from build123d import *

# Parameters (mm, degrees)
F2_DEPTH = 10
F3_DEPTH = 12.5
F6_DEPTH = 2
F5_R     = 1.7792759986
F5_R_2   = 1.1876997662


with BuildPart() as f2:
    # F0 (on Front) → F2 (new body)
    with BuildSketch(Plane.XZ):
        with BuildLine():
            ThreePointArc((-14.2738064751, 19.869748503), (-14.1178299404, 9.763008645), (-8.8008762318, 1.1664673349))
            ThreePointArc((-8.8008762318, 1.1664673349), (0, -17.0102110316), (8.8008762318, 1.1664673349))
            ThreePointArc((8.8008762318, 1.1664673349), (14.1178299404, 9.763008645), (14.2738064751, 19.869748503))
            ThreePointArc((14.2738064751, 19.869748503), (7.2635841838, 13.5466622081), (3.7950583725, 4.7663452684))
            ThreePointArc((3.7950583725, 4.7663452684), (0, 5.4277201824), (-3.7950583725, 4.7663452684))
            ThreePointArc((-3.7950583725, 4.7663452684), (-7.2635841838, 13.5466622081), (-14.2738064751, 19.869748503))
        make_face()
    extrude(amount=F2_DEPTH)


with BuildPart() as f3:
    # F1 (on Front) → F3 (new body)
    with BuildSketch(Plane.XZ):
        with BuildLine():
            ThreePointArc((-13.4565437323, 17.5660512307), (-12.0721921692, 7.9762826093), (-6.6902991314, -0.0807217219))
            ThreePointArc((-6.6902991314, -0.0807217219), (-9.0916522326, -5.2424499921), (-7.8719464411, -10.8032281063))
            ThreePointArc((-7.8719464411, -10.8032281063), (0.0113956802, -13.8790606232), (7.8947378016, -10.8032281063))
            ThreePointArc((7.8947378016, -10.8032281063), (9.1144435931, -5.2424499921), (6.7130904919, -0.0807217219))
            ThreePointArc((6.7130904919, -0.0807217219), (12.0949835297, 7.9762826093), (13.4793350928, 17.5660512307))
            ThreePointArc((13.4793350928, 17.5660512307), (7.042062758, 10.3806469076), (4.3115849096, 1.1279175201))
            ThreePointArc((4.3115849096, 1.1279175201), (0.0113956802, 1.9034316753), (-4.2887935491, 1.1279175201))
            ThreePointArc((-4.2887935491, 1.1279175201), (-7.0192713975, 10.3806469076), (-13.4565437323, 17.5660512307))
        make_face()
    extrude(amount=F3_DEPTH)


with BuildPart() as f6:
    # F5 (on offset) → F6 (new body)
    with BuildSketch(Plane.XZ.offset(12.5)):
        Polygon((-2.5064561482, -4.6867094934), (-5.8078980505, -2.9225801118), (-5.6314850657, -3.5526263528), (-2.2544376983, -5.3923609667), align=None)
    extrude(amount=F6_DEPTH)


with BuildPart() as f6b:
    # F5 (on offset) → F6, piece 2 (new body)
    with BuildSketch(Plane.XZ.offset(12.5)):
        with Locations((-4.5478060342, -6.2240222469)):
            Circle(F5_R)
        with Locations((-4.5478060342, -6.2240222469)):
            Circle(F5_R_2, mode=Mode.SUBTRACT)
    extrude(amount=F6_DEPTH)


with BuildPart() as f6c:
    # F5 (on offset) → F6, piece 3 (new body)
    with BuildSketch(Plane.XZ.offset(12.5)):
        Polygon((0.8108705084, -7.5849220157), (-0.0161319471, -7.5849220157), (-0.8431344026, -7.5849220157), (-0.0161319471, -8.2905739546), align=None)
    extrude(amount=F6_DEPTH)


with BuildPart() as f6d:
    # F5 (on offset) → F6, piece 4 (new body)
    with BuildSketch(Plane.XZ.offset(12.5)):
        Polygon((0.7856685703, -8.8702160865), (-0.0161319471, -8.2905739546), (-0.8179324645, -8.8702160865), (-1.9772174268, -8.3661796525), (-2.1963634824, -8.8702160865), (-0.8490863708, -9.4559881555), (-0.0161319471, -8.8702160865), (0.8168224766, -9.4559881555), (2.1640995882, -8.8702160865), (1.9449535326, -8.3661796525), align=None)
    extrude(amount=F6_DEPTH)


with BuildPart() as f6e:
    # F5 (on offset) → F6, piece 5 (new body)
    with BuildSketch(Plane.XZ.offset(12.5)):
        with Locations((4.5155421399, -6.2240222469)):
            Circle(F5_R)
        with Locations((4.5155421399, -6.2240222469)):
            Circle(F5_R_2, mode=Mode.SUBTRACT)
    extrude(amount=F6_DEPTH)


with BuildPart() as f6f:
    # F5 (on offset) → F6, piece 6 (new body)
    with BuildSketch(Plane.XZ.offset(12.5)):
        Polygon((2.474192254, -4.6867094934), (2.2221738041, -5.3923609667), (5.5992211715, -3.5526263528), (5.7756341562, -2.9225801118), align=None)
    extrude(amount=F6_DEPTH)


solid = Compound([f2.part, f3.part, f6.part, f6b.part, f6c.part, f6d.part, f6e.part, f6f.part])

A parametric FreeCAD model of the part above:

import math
import FreeCAD as App
import Part
import Sketcher

V = App.Vector

doc = App.newDocument("Part")
params = doc.addObject("Spreadsheet::Sheet", "Params")
for row, (alias, value) in enumerate([
    ("sketch1_radius", "19 mm"),
    ("pad1_length", "10 mm"),
    ("pad2_length", "12.5 mm"),
    ("pad3_length", "2 mm"),
    ("pad4_length", "2 mm"),
    ("pad5_length", "2 mm"),
    ("pad6_length", "2 mm"),
    ("pad7_length", "2 mm"),
    ("pad8_length", "2 mm"),
], start=1):
    params.set(f"A{row}", alias)
    params.set(f"B{row}", "=" + value)
    params.setAlias(f"B{row}", alias)

body = doc.addObject("PartDesign::Body", "Body")

sketch1 = body.newObject("Sketcher::SketchObject", "Sketch")
sketch1.AttachmentSupport = (doc.getObject("XZ_Plane"), [""])
sketch1.MapMode = "FlatFace"
sketch1.addGeometry([
    Part.ArcOfCircle(Part.Circle(V(4, 15, 0), V(0, 0, 1), 19), math.radians(165), math.radians(227)),
    Part.ArcOfCircle(Part.Circle(V(0, -6, 0), V(0, 0, 1), 11), math.radians(142), math.radians(398)),
    Part.ArcOfCircle(Part.Circle(V(-4, 15, 0), V(0, 0, 1), 19), math.radians(-47), math.radians(15)),
    Part.ArcOfCircle(Part.Circle(V(24, 2, 0), V(0, 0, 1), 21), math.radians(119), math.radians(172)),
    Part.ArcOfCircle(Part.Circle(V(0, -6, 0), V(0, 0, 1), 11), math.radians(70), math.radians(110)),
    Part.ArcOfCircle(Part.Circle(V(-24, 2, 0), V(0, 0, 1), 21), math.radians(8), math.radians(61)),
], False)
sketch1.addConstraint([
    Sketcher.Constraint("Coincident", 0, 2, 1, 1),
    Sketcher.Constraint("Coincident", 1, 2, 2, 1),
    Sketcher.Constraint("Coincident", 2, 2, 3, 1),
    Sketcher.Constraint("Coincident", 3, 2, 4, 1),
    Sketcher.Constraint("Coincident", 4, 2, 5, 1),
    Sketcher.Constraint("Coincident", 5, 2, 0, 1),
    Sketcher.Constraint("Coincident", 4, 3, 1, 3),
    Sketcher.Constraint("Equal", 0, 2),
    Sketcher.Constraint("Equal", 1, 4),
    Sketcher.Constraint("Equal", 3, 5),
    Sketcher.Constraint("Symmetric", 0, 3, 2, 3, -2),
    Sketcher.Constraint("Symmetric", 3, 3, 5, 3, -2),
    Sketcher.Constraint("PointOnObject", 1, 3, -2),
    Sketcher.Constraint("Radius", 0, 19.0),
    Sketcher.Constraint("Radius", 3, 20.675511),
    Sketcher.Constraint("Radius", 1, 11.218966),
    Sketcher.Constraint("DistanceY", -1, 1, 3, 3, 1.760819),
    Sketcher.Constraint("DistanceY", -1, 1, 2, 2, 19.869749),
    Sketcher.Constraint("DistanceX", -1, 1, 3, 2, 3.795058),
    Sketcher.Constraint("DistanceY", 1, 3, 0, 3, 20.890252),
    Sketcher.Constraint("DistanceX", 2, 3, 3, 3, 28.368448),
])
sketch1.setExpression("Constraints[13]", "Params.sketch1_radius")
pad1 = body.newObject("PartDesign::Pad", "Pad")
pad1.Profile = sketch1
pad1.setExpression("Length", "Params.pad1_length")
body2 = doc.addObject("PartDesign::Body", "Body001")

sketch2 = body2.newObject("Sketcher::SketchObject", "Sketch001")
sketch2.AttachmentSupport = (doc.getObject("XZ_Plane001"), [""])
sketch2.MapMode = "FlatFace"
sketch2.addGeometry([
    Part.ArcOfCircle(Part.Circle(V(8, 16, 0), V(0, 0, 1), 22), math.radians(175), math.radians(227)),
    Part.ArcOfCircle(Part.Circle(V(0, -6, 0), V(0, 0, 1), 9), math.radians(136), math.radians(211)),
    Part.ArcOfCircle(Part.Circle(V(0, -2, 0), V(0, 0, 1), 12), math.radians(-133), math.radians(-47)),
    Part.ArcOfCircle(Part.Circle(V(0, -6, 0), V(0, 0, 1), 9), math.radians(-31), math.radians(44)),
    Part.ArcOfCircle(Part.Circle(V(-8, 16, 0), V(0, 0, 1), 22), math.radians(-47), math.radians(5)),
    Part.ArcOfCircle(Part.Circle(V(26, 0, 0), V(0, 0, 1), 22), math.radians(125), math.radians(176)),
    Part.ArcOfCircle(Part.Circle(V(0, -10, 0), V(0, 0, 1), 12), math.radians(70), math.radians(110)),
    Part.ArcOfCircle(Part.Circle(V(-26, 0, 0), V(0, 0, 1), 22), math.radians(4), math.radians(55)),
], False)
sketch2.addConstraint([
    Sketcher.Constraint("Coincident", 0, 2, 1, 1),
    Sketcher.Constraint("Coincident", 1, 2, 2, 1),
    Sketcher.Constraint("Coincident", 2, 2, 3, 1),
    Sketcher.Constraint("Coincident", 3, 2, 4, 1),
    Sketcher.Constraint("Coincident", 4, 2, 5, 1),
    Sketcher.Constraint("Coincident", 5, 2, 6, 1),
    Sketcher.Constraint("Coincident", 6, 2, 7, 1),
    Sketcher.Constraint("Coincident", 7, 2, 0, 1),
    Sketcher.Constraint("Equal", 1, 3),
    Sketcher.Constraint("Equal", 0, 4),
    Sketcher.Constraint("Equal", 4, 5),
    Sketcher.Constraint("Equal", 5, 7),
    Sketcher.Constraint("Horizontal", 1, 3, 3, 3),
    Sketcher.Constraint("Horizontal", 0, 3, 4, 3),
    Sketcher.Constraint("Horizontal", 5, 3, 7, 3),
    Sketcher.Constraint("Horizontal", 1, 2, 2, 2),
    Sketcher.Constraint("Horizontal", 0, 2, 3, 2),
    Sketcher.Constraint("Horizontal", 5, 2, 6, 2),
    Sketcher.Constraint("Horizontal", 4, 2, 7, 2),
    Sketcher.Constraint("DistanceY", 5, 3, -1, 1, 0.3),
    Sketcher.Constraint("Radius", 6, 12.30993),
    Sketcher.Constraint("Radius", 0, 21.927836),
    Sketcher.Constraint("Radius", 1, 8.896543),
    Sketcher.Constraint("Radius", 2, 11.640398),
    Sketcher.Constraint("DistanceX", -1, 1, 0, 3, 8.4022),
    Sketcher.Constraint("DistanceY", 6, 3, -1, 1, 10.406498),
    Sketcher.Constraint("DistanceX", 0, 2, -1, 1, 6.690299),
    Sketcher.Constraint("DistanceY", 1, 3, -1, 1, 6.216972),
    Sketcher.Constraint("DistanceX", 4, 3, -1, 1, 8.379409),
    Sketcher.Constraint("DistanceX", -1, 1, 5, 3, 26.192879),
    Sketcher.Constraint("DistanceY", 0, 2, -1, 1, 0.080722),
    Sketcher.Constraint("DistanceY", 1, 2, -1, 1, 10.803228),
])
pad2 = body2.newObject("PartDesign::Pad", "Pad001")
pad2.Profile = sketch2
pad2.setExpression("Length", "Params.pad2_length")
body3 = doc.addObject("PartDesign::Body", "Body002")

sketch3 = body3.newObject("Sketcher::SketchObject", "Sketch002")
sketch3.AttachmentSupport = (doc.getObject("XZ_Plane002"), [""])
sketch3.MapMode = "FlatFace"
sketch3.AttachmentOffset = App.Placement(V(0, 0, 12.5), App.Rotation())
sketch3.addGeometry([
    Part.LineSegment(V(-2.5, -4.7, 0), V(-5.8, -2.9, 0)),
    Part.LineSegment(V(-5.8, -2.9, 0), V(-5.6, -3.6, 0)),
    Part.LineSegment(V(-5.6, -3.6, 0), V(-2.3, -5.4, 0)),
    Part.LineSegment(V(-2.3, -5.4, 0), V(-2.5, -4.7, 0)),
], False)
sketch3.addConstraint([
    Sketcher.Constraint("Coincident", 0, 2, 1, 1),
    Sketcher.Constraint("Coincident", 1, 2, 2, 1),
    Sketcher.Constraint("Coincident", 2, 2, 3, 1),
    Sketcher.Constraint("Coincident", 3, 2, 0, 1),
    Sketcher.Constraint("DistanceX", 0, 2, -1, 1, 5.807898),
    Sketcher.Constraint("Distance", 1, 0.654278),
    Sketcher.Constraint("DistanceY", 0, 2, -1, 1, 2.92258),
    Sketcher.Constraint("DistanceY", 2, 2, -1, 1, 5.392361),
    Sketcher.Constraint("DistanceY", 3, 2, -1, 1, 4.686709),
    Sketcher.Constraint("DistanceX", 0, 2, 2, 2, 3.55346),
    Sketcher.Constraint("DistanceX", 3, 2, 2, 2, 0.252018),
    Sketcher.Constraint("DistanceX", 1, 2, 3, 2, 3.125029),
])
pad3 = body3.newObject("PartDesign::Pad", "Pad002")
pad3.Profile = sketch3
pad3.setExpression("Length", "Params.pad3_length")
body4 = doc.addObject("PartDesign::Body", "Body003")

sketch4 = body4.newObject("Sketcher::SketchObject", "Sketch003")
sketch4.AttachmentSupport = (doc.getObject("XZ_Plane003"), [""])
sketch4.MapMode = "FlatFace"
sketch4.AttachmentOffset = App.Placement(V(0, 0, 12.5), App.Rotation())
sketch4.addGeometry([
    Part.Circle(V(-4.5, -6.2, 0), V(0, 0, 1), 1.8),
    Part.Circle(V(-4.5, -6.2, 0), V(0, 0, 1), 1.2),
], False)
sketch4.addConstraint([
    Sketcher.Constraint("Coincident", 1, 3, 0, 3),
    Sketcher.Constraint("Diameter", 1, 2.3754),
    Sketcher.Constraint("Diameter", 0, 3.558552),
    Sketcher.Constraint("DistanceX", 0, 3, -1, 1, 4.547806),
    Sketcher.Constraint("DistanceY", 0, 3, -1, 1, 6.224022),
])
pad4 = body4.newObject("PartDesign::Pad", "Pad003")
pad4.Profile = sketch4
pad4.setExpression("Length", "Params.pad4_length")
body5 = doc.addObject("PartDesign::Body", "Body004")

sketch5 = body5.newObject("Sketcher::SketchObject", "Sketch004")
sketch5.AttachmentSupport = (doc.getObject("XZ_Plane004"), [""])
sketch5.MapMode = "FlatFace"
sketch5.AttachmentOffset = App.Placement(V(0, 0, 12.5), App.Rotation())
sketch5.addGeometry([
    Part.LineSegment(V(0.8, -7.6, 0), V(-0.8, -7.6, 0)),
    Part.LineSegment(V(-0.8, -7.6, 0), V(0, -8.3, 0)),
    Part.LineSegment(V(0, -8.3, 0), V(0.8, -7.6, 0)),
], False)
sketch5.addConstraint([
    Sketcher.Constraint("Coincident", 0, 2, 1, 1),
    Sketcher.Constraint("Coincident", 1, 2, 2, 1),
    Sketcher.Constraint("Coincident", 2, 2, 0, 1),
    Sketcher.Constraint("Horizontal", 0),
    Sketcher.Constraint("Equal", 1, 2),
    Sketcher.Constraint("Distance", 1, 1.087142),
    Sketcher.Constraint("DistanceX", 0, 2, 0, 1, 1.654005),
    Sketcher.Constraint("DistanceX", 1, 2, -1, 1, 0.016132),
    Sketcher.Constraint("DistanceY", 0, 2, -1, 1, 7.584922),
])
pad5 = body5.newObject("PartDesign::Pad", "Pad004")
pad5.Profile = sketch5
pad5.setExpression("Length", "Params.pad5_length")
body6 = doc.addObject("PartDesign::Body", "Body005")

sketch6 = body6.newObject("Sketcher::SketchObject", "Sketch005")
sketch6.AttachmentSupport = (doc.getObject("XZ_Plane005"), [""])
sketch6.MapMode = "FlatFace"
sketch6.AttachmentOffset = App.Placement(V(0, 0, 12.5), App.Rotation())
sketch6.addGeometry([
    Part.LineSegment(V(0.8, -8.9, 0), V(0, -8.3, 0)),
    Part.LineSegment(V(0, -8.3, 0), V(-0.8, -8.9, 0)),
    Part.LineSegment(V(-0.8, -8.9, 0), V(-2, -8.4, 0)),
    Part.LineSegment(V(-2, -8.4, 0), V(-2.2, -8.9, 0)),
    Part.LineSegment(V(-2.2, -8.9, 0), V(-0.8, -9.5, 0)),
    Part.LineSegment(V(-0.8, -9.5, 0), V(0, -8.9, 0)),
    Part.LineSegment(V(0, -8.9, 0), V(0.8, -9.5, 0)),
    Part.LineSegment(V(0.8, -9.5, 0), V(2.2, -8.9, 0)),
    Part.LineSegment(V(2.2, -8.9, 0), V(1.9, -8.4, 0)),
    Part.LineSegment(V(1.9, -8.4, 0), V(0.8, -8.9, 0)),
], False)
sketch6.addConstraint([
    Sketcher.Constraint("Coincident", 0, 2, 1, 1),
    Sketcher.Constraint("Coincident", 1, 2, 2, 1),
    Sketcher.Constraint("Coincident", 2, 2, 3, 1),
    Sketcher.Constraint("Coincident", 3, 2, 4, 1),
    Sketcher.Constraint("Coincident", 4, 2, 5, 1),
    Sketcher.Constraint("Coincident", 5, 2, 6, 1),
    Sketcher.Constraint("Coincident", 6, 2, 7, 1),
    Sketcher.Constraint("Coincident", 7, 2, 8, 1),
    Sketcher.Constraint("Coincident", 8, 2, 9, 1),
    Sketcher.Constraint("Coincident", 9, 2, 0, 1),
    Sketcher.Constraint("Perpendicular", 2, 3),
    Sketcher.Constraint("Perpendicular", 3, 4),
    Sketcher.Constraint("Perpendicular", 7, 8),
    Sketcher.Constraint("Perpendicular", 8, 9),
    Sketcher.Constraint("Horizontal", 1, 2, 3, 2),
    Sketcher.Constraint("Horizontal", 3, 2, 5, 2),
    Sketcher.Constraint("Horizontal", 4, 2, 6, 2),
    Sketcher.Constraint("Horizontal", 5, 2, 7, 2),
    Sketcher.Constraint("Horizontal", 2, 2, 8, 2),
    Sketcher.Constraint("Horizontal", 7, 2, 9, 2),
    Sketcher.Constraint("Vertical", 0, 2, 5, 2),
    Sketcher.Constraint("Equal", 0, 1),
    Sketcher.Constraint("Equal", 5, 6),
    Sketcher.Constraint("DistanceX", -1, 1, 7, 2, 2.1641),
    Sketcher.Constraint("DistanceX", 1, 2, 0, 2, 0.801801),
    Sketcher.Constraint("Distance", 0, 0.989378),
    Sketcher.Constraint("Distance", 2, 1.264118),
    Sketcher.Constraint("Distance", 4, 1.46911),
    Sketcher.Constraint("DistanceX", 0, 2, -1, 1, 0.016132),
    Sketcher.Constraint("DistanceY", 2, 2, -1, 1, 8.36618),
])
pad6 = body6.newObject("PartDesign::Pad", "Pad005")
pad6.Profile = sketch6
pad6.setExpression("Length", "Params.pad6_length")
body7 = doc.addObject("PartDesign::Body", "Body006")

sketch7 = body7.newObject("Sketcher::SketchObject", "Sketch006")
sketch7.AttachmentSupport = (doc.getObject("XZ_Plane006"), [""])
sketch7.MapMode = "FlatFace"
sketch7.AttachmentOffset = App.Placement(V(0, 0, 12.5), App.Rotation())
sketch7.addGeometry([
    Part.Circle(V(4.5, -6.2, 0), V(0, 0, 1), 1.8),
    Part.Circle(V(4.5, -6.2, 0), V(0, 0, 1), 1.2),
], False)
sketch7.addConstraint([
    Sketcher.Constraint("Coincident", 1, 3, 0, 3),
    Sketcher.Constraint("Diameter", 1, 2.3754),
    Sketcher.Constraint("Diameter", 0, 3.558552),
    Sketcher.Constraint("DistanceX", -1, 1, 0, 3, 4.515542),
    Sketcher.Constraint("DistanceY", 0, 3, -1, 1, 6.224022),
])
pad7 = body7.newObject("PartDesign::Pad", "Pad006")
pad7.Profile = sketch7
pad7.setExpression("Length", "Params.pad7_length")
body8 = doc.addObject("PartDesign::Body", "Body007")

sketch8 = body8.newObject("Sketcher::SketchObject", "Sketch007")
sketch8.AttachmentSupport = (doc.getObject("XZ_Plane007"), [""])
sketch8.MapMode = "FlatFace"
sketch8.AttachmentOffset = App.Placement(V(0, 0, 12.5), App.Rotation())
sketch8.addGeometry([
    Part.LineSegment(V(2.5, -4.7, 0), V(2.2, -5.4, 0)),
    Part.LineSegment(V(2.2, -5.4, 0), V(5.6, -3.6, 0)),
    Part.LineSegment(V(5.6, -3.6, 0), V(5.8, -2.9, 0)),
    Part.LineSegment(V(5.8, -2.9, 0), V(2.5, -4.7, 0)),
], False)
sketch8.addConstraint([
    Sketcher.Constraint("Coincident", 0, 2, 1, 1),
    Sketcher.Constraint("Coincident", 1, 2, 2, 1),
    Sketcher.Constraint("Coincident", 2, 2, 3, 1),
    Sketcher.Constraint("Coincident", 3, 2, 0, 1),
    Sketcher.Constraint("Distance", 2, 0.654278),
    Sketcher.Constraint("DistanceY", 0, 2, -1, 1, 5.392361),
    Sketcher.Constraint("DistanceX", -1, 1, 1, 2, 5.599221),
    Sketcher.Constraint("DistanceY", 2, 2, -1, 1, 2.92258),
    Sketcher.Constraint("DistanceY", 3, 2, -1, 1, 4.686709),
    Sketcher.Constraint("DistanceX", 0, 2, 2, 2, 3.55346),
    Sketcher.Constraint("DistanceX", 0, 2, 3, 2, 0.252018),
    Sketcher.Constraint("DistanceX", 3, 2, 1, 2, 3.125029),
])
pad8 = body8.newObject("PartDesign::Pad", "Pad007")
pad8.Profile = sketch8
pad8.setExpression("Length", "Params.pad8_length")

doc.recompute()
